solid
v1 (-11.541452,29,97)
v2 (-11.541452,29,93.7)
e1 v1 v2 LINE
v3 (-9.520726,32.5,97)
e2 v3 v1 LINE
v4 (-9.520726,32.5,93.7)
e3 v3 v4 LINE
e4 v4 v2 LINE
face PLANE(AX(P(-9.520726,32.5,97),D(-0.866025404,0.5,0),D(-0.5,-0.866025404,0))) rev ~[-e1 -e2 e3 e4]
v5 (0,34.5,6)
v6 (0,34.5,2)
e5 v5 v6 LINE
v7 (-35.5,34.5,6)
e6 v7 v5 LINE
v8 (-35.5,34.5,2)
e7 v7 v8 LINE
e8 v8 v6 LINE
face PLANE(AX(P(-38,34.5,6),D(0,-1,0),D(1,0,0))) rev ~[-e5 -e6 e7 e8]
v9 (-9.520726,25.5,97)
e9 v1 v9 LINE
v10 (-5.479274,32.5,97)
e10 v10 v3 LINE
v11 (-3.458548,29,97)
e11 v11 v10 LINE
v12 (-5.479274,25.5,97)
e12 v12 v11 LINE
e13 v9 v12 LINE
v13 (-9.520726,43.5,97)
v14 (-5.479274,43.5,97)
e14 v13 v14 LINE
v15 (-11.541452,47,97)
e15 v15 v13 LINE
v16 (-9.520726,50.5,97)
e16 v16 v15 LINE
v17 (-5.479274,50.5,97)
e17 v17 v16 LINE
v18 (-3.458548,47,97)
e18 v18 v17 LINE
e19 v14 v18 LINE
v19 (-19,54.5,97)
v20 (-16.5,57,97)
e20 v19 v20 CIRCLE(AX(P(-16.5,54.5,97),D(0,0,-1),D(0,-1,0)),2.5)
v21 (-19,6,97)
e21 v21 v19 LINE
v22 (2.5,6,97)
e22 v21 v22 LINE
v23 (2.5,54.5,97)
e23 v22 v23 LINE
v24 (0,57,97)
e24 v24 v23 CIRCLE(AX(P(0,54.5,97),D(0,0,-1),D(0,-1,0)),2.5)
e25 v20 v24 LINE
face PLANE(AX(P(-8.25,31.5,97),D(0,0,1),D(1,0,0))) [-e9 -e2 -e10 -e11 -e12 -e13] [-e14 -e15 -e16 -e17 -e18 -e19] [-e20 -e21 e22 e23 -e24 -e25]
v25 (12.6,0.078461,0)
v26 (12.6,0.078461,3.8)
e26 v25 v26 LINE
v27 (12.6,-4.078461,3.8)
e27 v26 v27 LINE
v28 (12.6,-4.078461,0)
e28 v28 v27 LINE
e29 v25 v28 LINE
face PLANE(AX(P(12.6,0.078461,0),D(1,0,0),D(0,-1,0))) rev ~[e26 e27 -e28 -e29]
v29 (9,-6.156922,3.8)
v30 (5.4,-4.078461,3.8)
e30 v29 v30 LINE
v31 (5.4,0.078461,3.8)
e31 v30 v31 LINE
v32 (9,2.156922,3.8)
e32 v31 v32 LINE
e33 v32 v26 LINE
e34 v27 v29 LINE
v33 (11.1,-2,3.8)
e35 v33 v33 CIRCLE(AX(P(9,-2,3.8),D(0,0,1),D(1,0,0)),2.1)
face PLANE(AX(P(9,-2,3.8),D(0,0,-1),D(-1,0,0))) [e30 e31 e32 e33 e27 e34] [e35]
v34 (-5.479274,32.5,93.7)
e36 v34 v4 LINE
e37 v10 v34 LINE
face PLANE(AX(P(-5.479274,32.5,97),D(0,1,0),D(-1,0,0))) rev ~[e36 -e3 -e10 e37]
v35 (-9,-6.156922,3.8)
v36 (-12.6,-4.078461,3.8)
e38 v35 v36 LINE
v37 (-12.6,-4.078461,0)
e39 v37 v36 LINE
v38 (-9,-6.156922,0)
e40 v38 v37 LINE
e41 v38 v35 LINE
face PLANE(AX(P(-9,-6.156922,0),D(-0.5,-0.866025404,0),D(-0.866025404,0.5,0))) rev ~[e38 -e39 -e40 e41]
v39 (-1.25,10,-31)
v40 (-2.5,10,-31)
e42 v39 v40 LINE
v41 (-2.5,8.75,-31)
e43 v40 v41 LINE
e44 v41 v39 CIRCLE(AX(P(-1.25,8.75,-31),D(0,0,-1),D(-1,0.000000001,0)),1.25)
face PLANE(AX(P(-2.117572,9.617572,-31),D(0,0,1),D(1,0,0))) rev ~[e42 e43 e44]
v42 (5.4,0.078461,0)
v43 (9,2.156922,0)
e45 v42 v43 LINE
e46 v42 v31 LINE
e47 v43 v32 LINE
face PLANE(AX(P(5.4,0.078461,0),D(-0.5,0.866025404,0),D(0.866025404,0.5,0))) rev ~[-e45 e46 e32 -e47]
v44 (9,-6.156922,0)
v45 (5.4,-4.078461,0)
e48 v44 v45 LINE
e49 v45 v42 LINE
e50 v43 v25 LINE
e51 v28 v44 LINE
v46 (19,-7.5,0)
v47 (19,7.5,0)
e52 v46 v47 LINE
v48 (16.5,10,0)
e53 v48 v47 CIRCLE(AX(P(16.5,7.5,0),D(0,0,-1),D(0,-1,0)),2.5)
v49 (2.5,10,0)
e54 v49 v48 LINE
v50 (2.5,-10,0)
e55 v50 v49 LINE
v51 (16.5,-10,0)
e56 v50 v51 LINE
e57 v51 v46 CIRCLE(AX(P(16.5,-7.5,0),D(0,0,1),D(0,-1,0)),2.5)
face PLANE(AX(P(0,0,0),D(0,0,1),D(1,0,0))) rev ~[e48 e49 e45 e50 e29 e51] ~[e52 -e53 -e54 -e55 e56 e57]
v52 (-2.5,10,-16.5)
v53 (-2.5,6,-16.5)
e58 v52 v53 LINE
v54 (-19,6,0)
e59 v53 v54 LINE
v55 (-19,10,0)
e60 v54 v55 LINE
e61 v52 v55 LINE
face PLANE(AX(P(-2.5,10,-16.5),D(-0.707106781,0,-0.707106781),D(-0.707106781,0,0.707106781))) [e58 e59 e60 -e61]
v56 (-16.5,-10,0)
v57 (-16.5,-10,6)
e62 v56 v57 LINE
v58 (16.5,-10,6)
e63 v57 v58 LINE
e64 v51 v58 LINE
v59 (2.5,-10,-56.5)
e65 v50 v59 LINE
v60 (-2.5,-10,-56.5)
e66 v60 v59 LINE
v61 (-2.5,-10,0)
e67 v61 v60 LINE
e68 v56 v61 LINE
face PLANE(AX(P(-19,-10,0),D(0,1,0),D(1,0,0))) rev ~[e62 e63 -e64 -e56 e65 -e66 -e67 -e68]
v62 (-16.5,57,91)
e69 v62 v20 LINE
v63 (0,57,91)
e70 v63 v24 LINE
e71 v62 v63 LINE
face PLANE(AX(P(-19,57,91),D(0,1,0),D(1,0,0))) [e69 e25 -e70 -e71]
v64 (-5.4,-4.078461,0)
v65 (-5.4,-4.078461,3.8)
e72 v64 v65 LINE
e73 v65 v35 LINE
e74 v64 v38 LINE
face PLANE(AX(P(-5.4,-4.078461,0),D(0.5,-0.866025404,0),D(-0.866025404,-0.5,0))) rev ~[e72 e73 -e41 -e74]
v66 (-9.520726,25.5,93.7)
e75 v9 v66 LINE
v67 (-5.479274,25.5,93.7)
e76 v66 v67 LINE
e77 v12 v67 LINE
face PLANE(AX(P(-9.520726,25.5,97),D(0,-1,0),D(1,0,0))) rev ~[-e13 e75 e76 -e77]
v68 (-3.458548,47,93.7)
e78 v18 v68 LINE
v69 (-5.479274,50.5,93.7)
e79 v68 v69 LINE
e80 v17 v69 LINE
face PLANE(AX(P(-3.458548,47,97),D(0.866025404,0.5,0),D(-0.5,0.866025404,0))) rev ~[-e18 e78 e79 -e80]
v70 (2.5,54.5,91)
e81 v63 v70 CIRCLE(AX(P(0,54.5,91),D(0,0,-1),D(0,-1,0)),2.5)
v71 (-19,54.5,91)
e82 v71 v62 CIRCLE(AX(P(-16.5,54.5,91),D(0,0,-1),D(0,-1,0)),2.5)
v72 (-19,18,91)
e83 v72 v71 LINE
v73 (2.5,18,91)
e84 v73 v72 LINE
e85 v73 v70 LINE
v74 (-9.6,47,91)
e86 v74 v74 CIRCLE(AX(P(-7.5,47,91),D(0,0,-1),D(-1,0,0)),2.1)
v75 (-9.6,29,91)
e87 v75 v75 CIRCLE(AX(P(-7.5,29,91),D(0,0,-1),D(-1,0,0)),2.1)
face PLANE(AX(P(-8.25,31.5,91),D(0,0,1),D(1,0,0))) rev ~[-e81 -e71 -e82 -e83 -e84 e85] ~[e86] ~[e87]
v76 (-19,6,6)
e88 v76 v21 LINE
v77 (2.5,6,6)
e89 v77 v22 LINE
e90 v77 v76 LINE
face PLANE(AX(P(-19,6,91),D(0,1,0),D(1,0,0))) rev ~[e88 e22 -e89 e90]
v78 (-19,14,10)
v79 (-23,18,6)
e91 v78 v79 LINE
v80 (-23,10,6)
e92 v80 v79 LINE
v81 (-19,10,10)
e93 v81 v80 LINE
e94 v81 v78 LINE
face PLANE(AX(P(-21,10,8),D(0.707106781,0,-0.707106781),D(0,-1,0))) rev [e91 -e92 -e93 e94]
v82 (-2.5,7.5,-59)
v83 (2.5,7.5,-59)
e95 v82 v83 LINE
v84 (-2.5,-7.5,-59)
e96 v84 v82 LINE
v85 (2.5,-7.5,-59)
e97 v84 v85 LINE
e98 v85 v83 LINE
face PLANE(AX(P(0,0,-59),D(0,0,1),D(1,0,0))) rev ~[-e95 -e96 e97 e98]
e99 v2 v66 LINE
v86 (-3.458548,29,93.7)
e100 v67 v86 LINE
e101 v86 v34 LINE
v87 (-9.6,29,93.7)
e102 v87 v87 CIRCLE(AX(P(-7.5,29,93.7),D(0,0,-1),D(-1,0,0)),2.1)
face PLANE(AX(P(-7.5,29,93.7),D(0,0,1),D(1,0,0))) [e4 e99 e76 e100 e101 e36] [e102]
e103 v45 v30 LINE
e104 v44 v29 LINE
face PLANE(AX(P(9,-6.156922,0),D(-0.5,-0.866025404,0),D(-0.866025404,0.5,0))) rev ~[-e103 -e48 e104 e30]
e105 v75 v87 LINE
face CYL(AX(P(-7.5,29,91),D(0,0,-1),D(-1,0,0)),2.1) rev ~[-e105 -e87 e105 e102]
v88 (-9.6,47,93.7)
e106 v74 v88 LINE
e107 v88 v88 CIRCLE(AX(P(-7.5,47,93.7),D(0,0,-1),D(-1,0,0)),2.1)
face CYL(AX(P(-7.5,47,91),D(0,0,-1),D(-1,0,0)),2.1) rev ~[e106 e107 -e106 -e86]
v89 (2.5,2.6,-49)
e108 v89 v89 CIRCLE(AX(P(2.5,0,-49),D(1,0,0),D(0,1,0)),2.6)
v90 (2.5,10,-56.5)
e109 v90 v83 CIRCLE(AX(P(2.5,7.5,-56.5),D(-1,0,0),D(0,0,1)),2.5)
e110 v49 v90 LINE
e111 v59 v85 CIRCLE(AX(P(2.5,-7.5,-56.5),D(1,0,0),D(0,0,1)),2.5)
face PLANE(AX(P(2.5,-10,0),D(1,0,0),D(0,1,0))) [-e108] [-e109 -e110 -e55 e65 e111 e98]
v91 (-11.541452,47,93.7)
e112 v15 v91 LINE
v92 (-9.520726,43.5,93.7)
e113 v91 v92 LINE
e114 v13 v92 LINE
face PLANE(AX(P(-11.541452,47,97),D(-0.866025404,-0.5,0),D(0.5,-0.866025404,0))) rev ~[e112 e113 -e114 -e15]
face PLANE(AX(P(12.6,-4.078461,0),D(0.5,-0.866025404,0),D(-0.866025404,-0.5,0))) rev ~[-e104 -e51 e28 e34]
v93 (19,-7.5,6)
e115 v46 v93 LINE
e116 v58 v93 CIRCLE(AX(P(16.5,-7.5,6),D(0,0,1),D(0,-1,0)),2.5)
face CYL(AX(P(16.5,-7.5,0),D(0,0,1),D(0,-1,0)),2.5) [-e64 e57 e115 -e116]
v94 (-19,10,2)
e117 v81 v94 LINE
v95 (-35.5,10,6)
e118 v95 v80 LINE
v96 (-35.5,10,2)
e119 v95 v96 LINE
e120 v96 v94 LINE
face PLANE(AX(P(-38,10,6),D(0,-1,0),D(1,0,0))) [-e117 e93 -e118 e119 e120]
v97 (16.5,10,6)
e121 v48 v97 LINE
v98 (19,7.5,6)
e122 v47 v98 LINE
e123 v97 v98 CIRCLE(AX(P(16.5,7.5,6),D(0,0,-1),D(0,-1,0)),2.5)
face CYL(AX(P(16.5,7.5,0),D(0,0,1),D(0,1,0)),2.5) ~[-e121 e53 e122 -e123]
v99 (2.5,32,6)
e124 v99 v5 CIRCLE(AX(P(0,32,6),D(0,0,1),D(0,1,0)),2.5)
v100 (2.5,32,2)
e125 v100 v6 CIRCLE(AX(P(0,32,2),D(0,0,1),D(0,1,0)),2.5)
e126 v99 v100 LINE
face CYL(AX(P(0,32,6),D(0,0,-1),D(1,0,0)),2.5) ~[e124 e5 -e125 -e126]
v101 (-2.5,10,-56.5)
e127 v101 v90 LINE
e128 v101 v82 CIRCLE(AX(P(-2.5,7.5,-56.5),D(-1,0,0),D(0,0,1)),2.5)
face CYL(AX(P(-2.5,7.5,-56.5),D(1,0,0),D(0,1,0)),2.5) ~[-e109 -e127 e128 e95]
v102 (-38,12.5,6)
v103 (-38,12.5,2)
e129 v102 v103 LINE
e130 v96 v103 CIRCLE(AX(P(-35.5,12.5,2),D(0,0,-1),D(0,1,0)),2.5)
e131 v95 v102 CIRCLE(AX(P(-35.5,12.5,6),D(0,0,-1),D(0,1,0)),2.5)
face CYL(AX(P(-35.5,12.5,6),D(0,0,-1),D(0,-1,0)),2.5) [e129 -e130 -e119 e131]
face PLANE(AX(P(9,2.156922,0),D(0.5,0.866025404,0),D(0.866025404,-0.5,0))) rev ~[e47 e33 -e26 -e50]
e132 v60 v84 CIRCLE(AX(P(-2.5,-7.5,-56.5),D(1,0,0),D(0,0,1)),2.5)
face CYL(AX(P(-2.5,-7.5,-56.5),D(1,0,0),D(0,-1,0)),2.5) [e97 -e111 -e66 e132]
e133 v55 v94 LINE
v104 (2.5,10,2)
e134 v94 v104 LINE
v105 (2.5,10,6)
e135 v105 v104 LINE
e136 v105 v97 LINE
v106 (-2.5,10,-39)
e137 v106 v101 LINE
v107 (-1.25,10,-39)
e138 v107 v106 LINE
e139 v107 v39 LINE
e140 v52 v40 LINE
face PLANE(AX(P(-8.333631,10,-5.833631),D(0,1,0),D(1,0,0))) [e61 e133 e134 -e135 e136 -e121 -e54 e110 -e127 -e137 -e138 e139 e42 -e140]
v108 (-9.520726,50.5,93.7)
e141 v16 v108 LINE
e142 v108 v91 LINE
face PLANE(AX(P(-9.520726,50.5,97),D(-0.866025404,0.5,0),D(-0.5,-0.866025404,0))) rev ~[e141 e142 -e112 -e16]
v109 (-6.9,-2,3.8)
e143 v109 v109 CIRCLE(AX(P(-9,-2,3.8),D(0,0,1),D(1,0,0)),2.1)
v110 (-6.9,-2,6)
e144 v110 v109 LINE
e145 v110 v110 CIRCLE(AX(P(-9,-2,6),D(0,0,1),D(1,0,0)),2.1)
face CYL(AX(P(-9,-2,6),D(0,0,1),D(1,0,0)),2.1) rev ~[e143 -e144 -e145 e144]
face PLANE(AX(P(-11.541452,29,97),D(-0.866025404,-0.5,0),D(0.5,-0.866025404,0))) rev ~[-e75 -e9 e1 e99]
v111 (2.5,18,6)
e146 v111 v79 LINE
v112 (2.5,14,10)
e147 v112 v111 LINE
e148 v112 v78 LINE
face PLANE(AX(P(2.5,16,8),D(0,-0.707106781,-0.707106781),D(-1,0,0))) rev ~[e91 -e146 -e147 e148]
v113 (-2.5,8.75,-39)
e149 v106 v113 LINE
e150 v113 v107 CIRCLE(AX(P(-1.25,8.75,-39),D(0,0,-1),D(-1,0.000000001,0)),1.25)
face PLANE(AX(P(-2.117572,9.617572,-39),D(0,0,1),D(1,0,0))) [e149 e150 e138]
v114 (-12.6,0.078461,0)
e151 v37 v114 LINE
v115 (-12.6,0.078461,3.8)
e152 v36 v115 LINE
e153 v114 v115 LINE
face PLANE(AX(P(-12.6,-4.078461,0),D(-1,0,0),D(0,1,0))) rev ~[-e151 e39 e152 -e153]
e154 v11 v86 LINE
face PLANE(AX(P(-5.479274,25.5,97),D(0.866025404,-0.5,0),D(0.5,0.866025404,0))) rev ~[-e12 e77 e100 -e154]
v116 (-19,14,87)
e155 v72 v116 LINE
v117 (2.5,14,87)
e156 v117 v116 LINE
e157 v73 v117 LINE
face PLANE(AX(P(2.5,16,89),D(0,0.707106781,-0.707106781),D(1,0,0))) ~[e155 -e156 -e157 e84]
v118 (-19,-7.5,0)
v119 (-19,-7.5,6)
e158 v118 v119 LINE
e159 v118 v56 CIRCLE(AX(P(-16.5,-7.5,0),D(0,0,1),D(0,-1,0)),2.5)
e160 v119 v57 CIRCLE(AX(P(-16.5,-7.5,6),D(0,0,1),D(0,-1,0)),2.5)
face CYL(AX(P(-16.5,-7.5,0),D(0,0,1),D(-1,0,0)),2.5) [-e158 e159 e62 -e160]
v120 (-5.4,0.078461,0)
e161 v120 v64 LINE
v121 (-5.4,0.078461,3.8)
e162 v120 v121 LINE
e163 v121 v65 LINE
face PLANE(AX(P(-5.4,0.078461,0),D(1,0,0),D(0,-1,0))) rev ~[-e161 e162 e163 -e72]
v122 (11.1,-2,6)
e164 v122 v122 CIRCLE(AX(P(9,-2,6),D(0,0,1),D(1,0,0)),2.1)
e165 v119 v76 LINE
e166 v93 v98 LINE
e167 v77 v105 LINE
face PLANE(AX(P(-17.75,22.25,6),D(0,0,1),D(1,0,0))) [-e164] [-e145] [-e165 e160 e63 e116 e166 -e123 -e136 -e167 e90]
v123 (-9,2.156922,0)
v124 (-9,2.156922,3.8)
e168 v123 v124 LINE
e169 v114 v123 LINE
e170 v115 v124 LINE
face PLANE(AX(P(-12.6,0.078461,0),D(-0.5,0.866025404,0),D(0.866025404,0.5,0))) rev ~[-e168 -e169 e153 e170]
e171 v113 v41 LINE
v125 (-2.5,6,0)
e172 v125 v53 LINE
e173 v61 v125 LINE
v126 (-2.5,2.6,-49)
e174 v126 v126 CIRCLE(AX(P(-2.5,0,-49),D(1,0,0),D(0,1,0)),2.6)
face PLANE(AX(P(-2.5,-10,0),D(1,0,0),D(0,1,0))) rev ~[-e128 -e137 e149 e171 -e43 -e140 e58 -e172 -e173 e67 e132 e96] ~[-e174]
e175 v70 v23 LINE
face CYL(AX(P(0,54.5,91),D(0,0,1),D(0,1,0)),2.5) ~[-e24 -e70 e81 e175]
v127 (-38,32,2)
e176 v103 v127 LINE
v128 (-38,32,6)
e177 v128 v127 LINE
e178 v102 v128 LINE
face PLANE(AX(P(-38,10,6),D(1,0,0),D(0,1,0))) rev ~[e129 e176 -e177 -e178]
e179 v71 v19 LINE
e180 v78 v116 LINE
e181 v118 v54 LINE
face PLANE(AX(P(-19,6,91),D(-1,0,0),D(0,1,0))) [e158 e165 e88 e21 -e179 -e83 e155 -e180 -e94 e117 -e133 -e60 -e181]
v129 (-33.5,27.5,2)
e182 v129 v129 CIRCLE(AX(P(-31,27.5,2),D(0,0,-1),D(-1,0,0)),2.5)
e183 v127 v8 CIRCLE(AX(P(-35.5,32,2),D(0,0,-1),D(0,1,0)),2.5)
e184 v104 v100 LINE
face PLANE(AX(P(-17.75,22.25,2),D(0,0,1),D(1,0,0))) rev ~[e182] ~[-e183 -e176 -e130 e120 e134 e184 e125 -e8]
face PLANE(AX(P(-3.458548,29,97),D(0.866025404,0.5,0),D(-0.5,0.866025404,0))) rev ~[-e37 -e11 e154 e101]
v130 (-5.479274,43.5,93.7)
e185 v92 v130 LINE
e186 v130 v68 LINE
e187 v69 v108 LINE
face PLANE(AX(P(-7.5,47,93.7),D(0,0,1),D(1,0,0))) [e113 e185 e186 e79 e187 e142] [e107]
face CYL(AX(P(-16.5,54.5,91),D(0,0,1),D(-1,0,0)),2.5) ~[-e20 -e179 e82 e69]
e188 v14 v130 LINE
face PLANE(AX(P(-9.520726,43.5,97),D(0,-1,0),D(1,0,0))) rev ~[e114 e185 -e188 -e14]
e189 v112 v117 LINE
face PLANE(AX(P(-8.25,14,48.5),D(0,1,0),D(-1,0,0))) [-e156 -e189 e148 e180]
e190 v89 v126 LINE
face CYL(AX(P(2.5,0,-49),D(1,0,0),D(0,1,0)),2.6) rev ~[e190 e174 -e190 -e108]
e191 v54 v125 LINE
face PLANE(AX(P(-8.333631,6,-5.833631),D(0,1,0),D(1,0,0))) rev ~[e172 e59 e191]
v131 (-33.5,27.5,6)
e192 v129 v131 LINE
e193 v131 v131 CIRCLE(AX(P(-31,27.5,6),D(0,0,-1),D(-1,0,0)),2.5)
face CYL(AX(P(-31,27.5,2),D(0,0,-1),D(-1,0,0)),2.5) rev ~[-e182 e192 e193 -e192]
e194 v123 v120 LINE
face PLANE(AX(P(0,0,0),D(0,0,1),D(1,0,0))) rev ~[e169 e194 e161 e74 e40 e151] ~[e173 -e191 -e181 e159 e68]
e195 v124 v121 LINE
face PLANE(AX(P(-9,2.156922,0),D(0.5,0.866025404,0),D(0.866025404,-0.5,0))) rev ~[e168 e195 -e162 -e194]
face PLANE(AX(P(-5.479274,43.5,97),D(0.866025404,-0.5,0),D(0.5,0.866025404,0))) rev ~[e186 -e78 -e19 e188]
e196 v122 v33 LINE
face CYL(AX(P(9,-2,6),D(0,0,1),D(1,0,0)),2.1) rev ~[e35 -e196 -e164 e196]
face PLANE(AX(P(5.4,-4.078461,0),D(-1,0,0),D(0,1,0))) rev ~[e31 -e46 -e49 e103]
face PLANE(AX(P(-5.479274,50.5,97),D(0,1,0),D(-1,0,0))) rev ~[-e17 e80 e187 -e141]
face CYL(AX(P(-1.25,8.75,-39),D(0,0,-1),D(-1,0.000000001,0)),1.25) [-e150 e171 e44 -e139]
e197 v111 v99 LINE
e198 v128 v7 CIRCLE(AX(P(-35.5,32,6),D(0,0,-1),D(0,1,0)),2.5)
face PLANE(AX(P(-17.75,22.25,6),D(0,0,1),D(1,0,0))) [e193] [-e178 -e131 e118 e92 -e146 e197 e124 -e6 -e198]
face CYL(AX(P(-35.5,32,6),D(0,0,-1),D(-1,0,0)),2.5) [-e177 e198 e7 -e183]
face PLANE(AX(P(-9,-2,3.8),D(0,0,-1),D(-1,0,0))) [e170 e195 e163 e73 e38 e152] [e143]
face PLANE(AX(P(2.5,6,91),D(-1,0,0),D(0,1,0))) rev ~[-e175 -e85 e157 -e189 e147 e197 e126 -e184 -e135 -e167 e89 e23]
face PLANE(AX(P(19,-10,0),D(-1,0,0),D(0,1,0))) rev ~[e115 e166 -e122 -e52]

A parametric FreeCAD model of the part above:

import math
import FreeCAD as App
import Part
import Sketcher
from FreeCAD import Vector
Q = App.Units.Quantity


def edges_at(feature, points):
    """Names of the edges that pass closest to the given points."""
    edges = feature.Shape.Edges
    near = lambda p: min(range(len(edges)), key=lambda i: edges[i].distToShape(Part.Vertex(*p))[0])
    return sorted({f"Edge{near(p) + 1}" for p in points})

doc = App.newDocument("Part")
body = doc.addObject("PartDesign::Body", "Body")

sketch1 = body.newObject("Sketcher::SketchObject", "Sketch")
sketch1.AttachmentSupport = (doc.getObject("XY_Plane"), [""])
sketch1.MapMode = "FlatFace"
sketch1.addGeometry(Part.LineSegment(Vector(-19, 10, 0), Vector(-19, -10, 0)), False)
sketch1.addGeometry(Part.LineSegment(Vector(-19, -10, 0), Vector(19, -10, 0)), False)
sketch1.addGeometry(Part.LineSegment(Vector(19, -10, 0), Vector(19, 10, 0)), False)
sketch1.addGeometry(Part.LineSegment(Vector(19, 10, 0), Vector(-19, 10, 0)), False)
sketch1.addConstraint(Sketcher.Constraint("Coincident", 0, 2, 1, 1))
sketch1.addConstraint(Sketcher.Constraint("Coincident", 1, 2, 2, 1))
sketch1.addConstraint(Sketcher.Constraint("Coincident", 2, 2, 3, 1))
sketch1.addConstraint(Sketcher.Constraint("Coincident", 3, 2, 0, 1))
sketch1.addConstraint(Sketcher.Constraint("Vertical", 0))
sketch1.addConstraint(Sketcher.Constraint("Horizontal", 1))
sketch1.addConstraint(Sketcher.Constraint("Vertical", 2))
sketch1.addConstraint(Sketcher.Constraint("Horizontal", 3))
sketch1.addConstraint(Sketcher.Constraint("Symmetric", 0, 2, 2, 2, -1, 1))
sketch1.addConstraint(Sketcher.Constraint("DistanceX", 1, 1, 1, 2, 38.0))
sketch1.addConstraint(Sketcher.Constraint("DistanceY", 0, 2, 0, 1, 20.0))
pad1 = body.newObject("PartDesign::Pad", "Pad")
pad1.Profile = sketch1
pad1.Length = 6

sketch2 = body.newObject("Sketcher::SketchObject", "Sketch001")
sketch2.AttachmentSupport = (doc.getObject("XY_Plane"), [""])
sketch2.MapMode = "FlatFace"
sketch2.addGeometry(Part.LineSegment(Vector(-2, 10, 0), Vector(-2, -10, 0)), False)
sketch2.addGeometry(Part.LineSegment(Vector(-2, -10, 0), Vector(2, -10, 0)), False)
sketch2.addGeometry(Part.LineSegment(Vector(2, -10, 0), Vector(2, 10, 0)), False)
sketch2.addGeometry(Part.LineSegment(Vector(2, 10, 0), Vector(-2, 10, 0)), False)
sketch2.addConstraint(Sketcher.Constraint("Coincident", 0, 2, 1, 1))
sketch2.addConstraint(Sketcher.Constraint("Coincident", 1, 2, 2, 1))
sketch2.addConstraint(Sketcher.Constraint("Coincident", 2, 2, 3, 1))
sketch2.addConstraint(Sketcher.Constraint("Coincident", 3, 2, 0, 1))
sketch2.addConstraint(Sketcher.Constraint("Vertical", 0))
sketch2.addConstraint(Sketcher.Constraint("Horizontal", 1))
sketch2.addConstraint(Sketcher.Constraint("Vertical", 2))
sketch2.addConstraint(Sketcher.Constraint("Horizontal", 3))
sketch2.addConstraint(Sketcher.Constraint("Symmetric", 0, 2, 2, 2, -1, 1))
sketch2.addConstraint(Sketcher.Constraint("DistanceX", 1, 1, 1, 2, 5.0))
sketch2.addConstraint(Sketcher.Constraint("DistanceY", 0, 2, 0, 1, 20.0))
pad2 = body.newObject("PartDesign::Pad", "Pad001")
pad2.Profile = sketch2
pad2.Length = 59
pad2.Reversed = True

sketch3 = body.newObject("Sketcher::SketchObject", "Sketch002")
sketch3.AttachmentSupport = (doc.getObject("XY_Plane"), [""])
sketch3.MapMode = "FlatFace"
sketch3.AttachmentOffset = App.Placement(Vector(0, 0, 6), App.Rotation())
sketch3.addGeometry(Part.LineSegment(Vector(-38, 34, 0), Vector(-38, 10, 0)), False)
sketch3.addGeometry(Part.LineSegment(Vector(-38, 10, 0), Vector(2, 10, 0)), False)
sketch3.addGeometry(Part.LineSegment(Vector(2, 10, 0), Vector(2, 34, 0)), False)
sketch3.addGeometry(Part.LineSegment(Vector(2, 34, 0), Vector(-38, 34, 0)), False)
sketch3.addConstraint(Sketcher.Constraint("Coincident", 0, 2, 1, 1))
sketch3.addConstraint(Sketcher.Constraint("Coincident", 1, 2, 2, 1))
sketch3.addConstraint(Sketcher.Constraint("Coincident", 2, 2, 3, 1))
sketch3.addConstraint(Sketcher.Constraint("Coincident", 3, 2, 0, 1))
sketch3.addConstraint(Sketcher.Constraint("Vertical", 0))
sketch3.addConstraint(Sketcher.Constraint("Horizontal", 1))
sketch3.addConstraint(Sketcher.Constraint("Vertical", 2))
sketch3.addConstraint(Sketcher.Constraint("Horizontal", 3))
sketch3.addConstraint(Sketcher.Constraint("DistanceX", 1, 1, 1, 2, 40.5))
sketch3.addConstraint(Sketcher.Constraint("DistanceY", 0, 2, 0, 1, 24.5))
sketch3.addConstraint(Sketcher.Constraint("DistanceX", 0, 2, -1, 1, 38.0))
sketch3.addConstraint(Sketcher.Constraint("DistanceY", -1, 1, 0, 2, 10.0))
pad3 = body.newObject("PartDesign::Pad", "Pad002")
pad3.Profile = sketch3
pad3.Length = 4
pad3.Reversed = True

sketch4 = body.newObject("Sketcher::SketchObject", "Sketch003")
sketch4.AttachmentSupport = (doc.getObject("XZ_Plane"), [""])
sketch4.MapMode = "FlatFace"
sketch4.AttachmentOffset = App.Placement(Vector(0, 0, -10), App.Rotation())
sketch4.addGeometry(Part.LineSegment(Vector(2, 91, 0), Vector(2, 6, 0)), False)
sketch4.addGeometry(Part.LineSegment(Vector(2, 6, 0), Vector(-19, 6, 0)), False)
sketch4.addGeometry(Part.LineSegment(Vector(-19, 6, 0), Vector(-19, 91, 0)), False)
sketch4.addGeometry(Part.LineSegment(Vector(-19, 91, 0), Vector(2, 91, 0)), False)
sketch4.addConstraint(Sketcher.Constraint("Coincident", 0, 2, 1, 1))
sketch4.addConstraint(Sketcher.Constraint("Coincident", 1, 2, 2, 1))
sketch4.addConstraint(Sketcher.Constraint("Coincident", 2, 2, 3, 1))
sketch4.addConstraint(Sketcher.Constraint("Coincident", 3, 2, 0, 1))
sketch4.addConstraint(Sketcher.Constraint("Vertical", 0))
sketch4.addConstraint(Sketcher.Constraint("Horizontal", 1))
sketch4.addConstraint(Sketcher.Constraint("Vertical", 2))
sketch4.addConstraint(Sketcher.Constraint("Horizontal", 3))
sketch4.addConstraint(Sketcher.Constraint("DistanceY", 0, 2, 0, 1, 85.0))
sketch4.addConstraint(Sketcher.Constraint("DistanceX", 1, 2, 1, 1, 21.5))
sketch4.addConstraint(Sketcher.Constraint("DistanceY", -1, 1, 0, 2, 6.0))
sketch4.addConstraint(Sketcher.Constraint("DistanceX", 1, 2, -1, 1, 19.0))
pad4 = body.newObject("PartDesign::Pad", "Pad003")
pad4.Profile = sketch4
pad4.Length = 8
pad4.Midplane = True

sketch5 = body.newObject("Sketcher::SketchObject", "Sketch004")
sketch5.AttachmentSupport = (doc.getObject("XY_Plane"), [""])
sketch5.MapMode = "FlatFace"
sketch5.AttachmentOffset = App.Placement(Vector(0, 0, 91), App.Rotation())
sketch5.addGeometry(Part.LineSegment(Vector(-19, 57, 0), Vector(-19, 6, 0)), False)
sketch5.addGeometry(Part.LineSegment(Vector(-19, 6, 0), Vector(2, 6, 0)), False)
sketch5.addGeometry(Part.LineSegment(Vector(2, 6, 0), Vector(2, 57, 0)), False)
sketch5.addGeometry(Part.LineSegment(Vector(2, 57, 0), Vector(-19, 57, 0)), False)
sketch5.addConstraint(Sketcher.Constraint("Coincident", 0, 2, 1, 1))
sketch5.addConstraint(Sketcher.Constraint("Coincident", 1, 2, 2, 1))
sketch5.addConstraint(Sketcher.Constraint("Coincident", 2, 2, 3, 1))
sketch5.addConstraint(Sketcher.Constraint("Coincident", 3, 2, 0, 1))
sketch5.addConstraint(Sketcher.Constraint("Vertical", 0))
sketch5.addConstraint(Sketcher.Constraint("Horizontal", 1))
sketch5.addConstraint(Sketcher.Constraint("Vertical", 2))
sketch5.addConstraint(Sketcher.Constraint("Horizontal", 3))
sketch5.addConstraint(Sketcher.Constraint("DistanceY", 0, 2, 0, 1, 51.0))
sketch5.addConstraint(Sketcher.Constraint("DistanceX", 1, 1, 1, 2, 21.5))
sketch5.addConstraint(Sketcher.Constraint("DistanceX", 0, 2, -1, 1, 19.0))
sketch5.addConstraint(Sketcher.Constraint("DistanceY", -1, 1, 0, 2, 6.0))
pad5 = body.newObject("PartDesign::Pad", "Pad004")
pad5.Profile = sketch5
pad5.Length = 6

sketch6 = body.newObject("Sketcher::SketchObject", "Sketch005")
sketch6.AttachmentSupport = (doc.getObject("XZ_Plane"), [""])
sketch6.MapMode = "FlatFace"
sketch6.AttachmentOffset = App.Placement(Vector(0, 0, -10), App.Rotation())
sketch6.addGeometry(Part.LineSegment(Vector(-2, -16, 0), Vector(-19, 0, 0)), False)
sketch6.addGeometry(Part.LineSegment(Vector(-19, 0, 0), Vector(-2, 0, 0)), False)
sketch6.addGeometry(Part.LineSegment(Vector(-2, 0, 0), Vector(-2, -16, 0)), False)
sketch6.addConstraint(Sketcher.Constraint("Coincident", 0, 2, 1, 1))
sketch6.addConstraint(Sketcher.Constraint("Coincident", 1, 2, 2, 1))
sketch6.addConstraint(Sketcher.Constraint("Coincident", 2, 2, 0, 1))
sketch6.addConstraint(Sketcher.Constraint("Horizontal", 1))
sketch6.addConstraint(Sketcher.Constraint("Vertical", 2))
sketch6.addConstraint(Sketcher.Constraint("PointOnObject", 0, 2, -1))
sketch6.addConstraint(Sketcher.Constraint("Equal", 1, 2))
sketch6.addConstraint(Sketcher.Constraint("DistanceX", 1, 1, 1, 2, 16.5))
sketch6.addConstraint(Sketcher.Constraint("DistanceX", 0, 2, -1, 1, 19.0))
pad6 = body.newObject("PartDesign::Pad", "Pad005")
pad6.Profile = sketch6
pad6.Length = 4

sketch7 = body.newObject("Sketcher::SketchObject", "Sketch006")
sketch7.AttachmentSupport = (doc.getObject("XY_Plane"), [""])
sketch7.MapMode = "FlatFace"
sketch7.AttachmentOffset = App.Placement(Vector(0, 0, -39), App.Rotation())
sketch7.addGeometry(Part.LineSegment(Vector(-2.5, 10, 0), Vector(-1.2, 10, 0)), False)
sketch7.addGeometry(Part.ArcOfCircle(Part.Circle(Vector(-1.2, 8.7, 0), Vector(0, 0, 1), 1.3), math.radians(90), math.radians(180)), False)
sketch7.addGeometry(Part.LineSegment(Vector(-2.5, 8.8, 0), Vector(-2.5, 10, 0)), False)
sketch7.addConstraint(Sketcher.Constraint("Tangent", 0, 2, 1, 1))
sketch7.addConstraint(Sketcher.Constraint("Tangent", 1, 2, 2, 1))
sketch7.addConstraint(Sketcher.Constraint("Coincident", 2, 2, 0, 1))
sketch7.addConstraint(Sketcher.Constraint("Horizontal", 0))
sketch7.addConstraint(Sketcher.Constraint("Vertical", 2))
sketch7.addConstraint(Sketcher.Constraint("Radius", 1, 1.25))
sketch7.addConstraint(Sketcher.Constraint("DistanceY", -1, 1, 0, 2, 10.0))
sketch7.addConstraint(Sketcher.Constraint("DistanceX", 1, 2, -1, 1, 2.5))
pocket1 = body.newObject("PartDesign::Pocket", "Pocket")
pocket1.Profile = sketch7
pocket1.Length = 8
pocket1.Reversed = True

sketch8 = body.newObject("Sketcher::SketchObject", "Sketch007")
sketch8.AttachmentSupport = (doc.getObject("XY_Plane"), [""])
sketch8.MapMode = "FlatFace"
sketch8.AttachmentOffset = App.Placement(Vector(0, 0, 6), App.Rotation())
sketch8.addGeometry(Part.Circle(Vector(-9, -2, 0), Vector(0, 0, 1), 2.1), False)
sketch8.addGeometry(Part.Circle(Vector(9, -2, 0), Vector(0, 0, 1), 2.1), False)
sketch8.addConstraint(Sketcher.Constraint("Equal", 0, 1))
sketch8.addConstraint(Sketcher.Constraint("Symmetric", 0, 3, 1, 3, -2))
sketch8.addConstraint(Sketcher.Constraint("Diameter", 0, 4.2))
sketch8.addConstraint(Sketcher.Constraint("DistanceX", 0, 3, -1, 1, 9.0))
sketch8.addConstraint(Sketcher.Constraint("DistanceY", 0, 3, -1, 1, 2.0))
pocket2 = body.newObject("PartDesign::Pocket", "Pocket001")
pocket2.Profile = sketch8
pocket2.Type = "ThroughAll"

sketch9 = body.newObject("Sketcher::SketchObject", "Sketch008")
sketch9.AttachmentSupport = (doc.getObject("XY_Plane"), [""])
sketch9.MapMode = "FlatFace"
sketch9.addGeometry(Part.LineSegment(Vector(9, 2.2, 0), Vector(12.6, 0.1, 0)), False)
sketch9.addGeometry(Part.LineSegment(Vector(12.6, 0.1, 0), Vector(12.6, -4.1, 0)), False)
sketch9.addGeometry(Part.LineSegment(Vector(12.6, -4.1, 0), Vector(9, -6.2, 0)), False)
sketch9.addGeometry(Part.LineSegment(Vector(9, -6.2, 0), Vector(5.4, -4.1, 0)), False)
sketch9.addGeometry(Part.LineSegment(Vector(5.4, -4.1, 0), Vector(5.4, 0.1, 0)), False)
sketch9.addGeometry(Part.LineSegment(Vector(5.4, 0.1, 0), Vector(9, 2.2, 0)), False)
sketch9.addGeometry(Part.LineSegment(Vector(-9, 2.2, 0), Vector(-5.4, 0.1, 0)), False)
sketch9.addGeometry(Part.LineSegment(Vector(-5.4, 0.1, 0), Vector(-5.4, -4.1, 0)), False)
sketch9.addGeometry(Part.LineSegment(Vector(-5.4, -4.1, 0), Vector(-9, -6.2, 0)), False)
sketch9.addGeometry(Part.LineSegment(Vector(-9, -6.2, 0), Vector(-12.6, -4.1, 0)), False)
sketch9.addGeometry(Part.LineSegment(Vector(-12.6, -4.1, 0), Vector(-12.6, 0.1, 0)), False)
sketch9.addGeometry(Part.LineSegment(Vector(-12.6, 0.1, 0), Vector(-9, 2.2, 0)), False)
sketch9.addConstraint(Sketcher.Constraint("Coincident", 0, 2, 1, 1))
sketch9.addConstraint(Sketcher.Constraint("Coincident", 1, 2, 2, 1))
sketch9.addConstraint(Sketcher.Constraint("Coincident", 2, 2, 3, 1))
sketch9.addConstraint(Sketcher.Constraint("Coincident", 3, 2, 4, 1))
sketch9.addConstraint(Sketcher.Constraint("Coincident", 4, 2, 5, 1))
sketch9.addConstraint(Sketcher.Constraint("Coincident", 5, 2, 0, 1))
sketch9.addConstraint(Sketcher.Constraint("Coincident", 6, 2, 7, 1))
sketch9.addConstraint(Sketcher.Constraint("Coincident", 7, 2, 8, 1))
sketch9.addConstraint(Sketcher.Constraint("Coincident", 8, 2, 9, 1))
sketch9.addConstraint(Sketcher.Constraint("Coincident", 9, 2, 10, 1))
sketch9.addConstraint(Sketcher.Constraint("Coincident", 10, 2, 11, 1))
sketch9.addConstraint(Sketcher.Constraint("Coincident", 11, 2, 6, 1))
sketch9.addConstraint(Sketcher.Constraint("Vertical", 1))
sketch9.addConstraint(Sketcher.Constraint("Vertical", 4))
sketch9.addConstraint(Sketcher.Constraint("Vertical", 7))
sketch9.addConstraint(Sketcher.Constraint("Vertical", 10))
sketch9.addConstraint(Sketcher.Constraint("Symmetric", 4, 2, 6, 2, -2))
sketch9.addConstraint(Sketcher.Constraint("Symmetric", 2, 2, 8, 2, -2))
sketch9.addConstraint(Sketcher.Constraint("Symmetric", 1, 2, 9, 2, -2))
sketch9.addConstraint(Sketcher.Constraint("Symmetric", 5, 2, 11, 2, -2))
sketch9.addConstraint(Sketcher.Constraint("Parallel", 0, 3))
sketch9.addConstraint(Sketcher.Constraint("Parallel", 2, 5))
sketch9.addConstraint(Sketcher.Constraint("Parallel", 3, 6))
sketch9.addConstraint(Sketcher.Constraint("Parallel", 5, 8))
sketch9.addConstraint(Sketcher.Constraint("Parallel", 8, 11))
sketch9.addConstraint(Sketcher.Constraint("Horizontal", 1, 2, 3, 2))
sketch9.addConstraint(Sketcher.Constraint("Horizontal", 0, 2, 4, 2))
sketch9.addConstraint(Sketcher.Constraint("Angle", 0, Q("-30 deg")))
sketch9.addConstraint(Sketcher.Constraint("DistanceX", -1, 1, 2, 2, 9.0))
sketch9.addConstraint(Sketcher.Constraint("DistanceX", -1, 1, 0, 2, 12.6))
sketch9.addConstraint(Sketcher.Constraint("DistanceY", 1, 2, 1, 1, 4.156922))
sketch9.addConstraint(Sketcher.Constraint("DistanceY", -1, 1, 0, 2, 0.078461))
pocket3 = body.newObject("PartDesign::Pocket", "Pocket002")
pocket3.Profile = sketch9
pocket3.Length = 3.8
pocket3.Reversed = True

sketch10 = body.newObject("Sketcher::SketchObject", "Sketch009")
sketch10.AttachmentSupport = (doc.getObject("YZ_Plane"), [""])
sketch10.MapMode = "FlatFace"
sketch10.AttachmentOffset = App.Placement(Vector(0, 0, 2.5), App.Rotation())
sketch10.addGeometry(Part.Circle(Vector(0, -49, 0), Vector(0, 0, 1), 2.6), False)
sketch10.addConstraint(Sketcher.Constraint("PointOnObject", 0, 3, -2))
sketch10.addConstraint(Sketcher.Constraint("Diameter", 0, 5.2))
sketch10.addConstraint(Sketcher.Constraint("DistanceY", 0, 3, -1, 1, 49.0))
pocket4 = body.newObject("PartDesign::Pocket", "Pocket003")
pocket4.Profile = sketch10
pocket4.Type = "ThroughAll"

sketch11 = body.newObject("Sketcher::SketchObject", "Sketch010")
sketch11.AttachmentSupport = (doc.getObject("XY_Plane"), [""])
sketch11.MapMode = "FlatFace"
sketch11.AttachmentOffset = App.Placement(Vector(0, 0, 91), App.Rotation())
sketch11.addGeometry(Part.Circle(Vector(-7.5, 29, 0), Vector(0, 0, 1), 2.1), False)
sketch11.addGeometry(Part.Circle(Vector(-7.5, 47, 0), Vector(0, 0, 1), 2.1), False)
sketch11.addConstraint(Sketcher.Constraint("Equal", 0, 1))
sketch11.addConstraint(Sketcher.Constraint("Vertical", 0, 3, 1, 3))
sketch11.addConstraint(Sketcher.Constraint("Diameter", 0, 4.2))
sketch11.addConstraint(Sketcher.Constraint("DistanceY", -1, 1, 0, 3, 29.0))
sketch11.addConstraint(Sketcher.Constraint("DistanceY", -1, 1, 1, 3, 47.0))
sketch11.addConstraint(Sketcher.Constraint("DistanceX", 0, 3, -1, 1, 7.5))
pocket5 = body.newObject("PartDesign::Pocket", "Pocket004")
pocket5.Profile = sketch11
pocket5.Type = "ThroughAll"
pocket5.Reversed = True

sketch12 = body.newObject("Sketcher::SketchObject", "Sketch011")
sketch12.AttachmentSupport = (doc.getObject("XY_Plane"), [""])
sketch12.MapMode = "FlatFace"
sketch12.AttachmentOffset = App.Placement(Vector(0, 0, 97), App.Rotation())
sketch12.addGeometry(Part.LineSegment(Vector(-3.5, 29, 0), Vector(-5.5, 32.5, 0)), False)
sketch12.addGeometry(Part.LineSegment(Vector(-5.5, 32.5, 0), Vector(-9.5, 32.5, 0)), False)
sketch12.addGeometry(Part.LineSegment(Vector(-9.5, 32.5, 0), Vector(-11.5, 29, 0)), False)
sketch12.addGeometry(Part.LineSegment(Vector(-11.5, 29, 0), Vector(-9.5, 25.5, 0)), False)
sketch12.addGeometry(Part.LineSegment(Vector(-9.5, 25.5, 0), Vector(-5.5, 25.5, 0)), False)
sketch12.addGeometry(Part.LineSegment(Vector(-5.5, 25.5, 0), Vector(-3.5, 29, 0)), False)
sketch12.addGeometry(Part.LineSegment(Vector(-3.5, 47, 0), Vector(-5.5, 50.5, 0)), False)
sketch12.addGeometry(Part.LineSegment(Vector(-5.5, 50.5, 0), Vector(-9.5, 50.5, 0)), False)
sketch12.addGeometry(Part.LineSegment(Vector(-9.5, 50.5, 0), Vector(-11.5, 47, 0)), False)
sketch12.addGeometry(Part.LineSegment(Vector(-11.5, 47, 0), Vector(-9.5, 43.5, 0)), False)
sketch12.addGeometry(Part.LineSegment(Vector(-9.5, 43.5, 0), Vector(-5.5, 43.5, 0)), False)
sketch12.addGeometry(Part.LineSegment(Vector(-5.5, 43.5, 0), Vector(-3.5, 47, 0)), False)
sketch12.addConstraint(Sketcher.Constraint("Coincident", 0, 2, 1, 1))
sketch12.addConstraint(Sketcher.Constraint("Coincident", 1, 2, 2, 1))
sketch12.addConstraint(Sketcher.Constraint("Coincident", 2, 2, 3, 1))
sketch12.addConstraint(Sketcher.Constraint("Coincident", 3, 2, 4, 1))
sketch12.addConstraint(Sketcher.Constraint("Coincident", 4, 2, 5, 1))
sketch12.addConstraint(Sketcher.Constraint("Coincident", 5, 2, 0, 1))
sketch12.addConstraint(Sketcher.Constraint("Coincident", 6, 2, 7, 1))
sketch12.addConstraint(Sketcher.Constraint("Coincident", 7, 2, 8, 1))
sketch12.addConstraint(Sketcher.Constraint("Coincident", 8, 2, 9, 1))
sketch12.addConstraint(Sketcher.Constraint("Coincident", 9, 2, 10, 1))
sketch12.addConstraint(Sketcher.Constraint("Coincident", 10, 2, 11, 1))
sketch12.addConstraint(Sketcher.Constraint("Coincident", 11, 2, 6, 1))
sketch12.addConstraint(Sketcher.Constraint("Horizontal", 1))
sketch12.addConstraint(Sketcher.Constraint("Horizontal", 4))
sketch12.addConstraint(Sketcher.Constraint("Horizontal", 7))
sketch12.addConstraint(Sketcher.Constraint("Horizontal", 10))
sketch12.addConstraint(Sketcher.Constraint("Parallel", 0, 3))
sketch12.addConstraint(Sketcher.Constraint("Parallel", 2, 5))
sketch12.addConstraint(Sketcher.Constraint("Parallel", 3, 6))
sketch12.addConstraint(Sketcher.Constraint("Parallel", 5, 8))
sketch12.addConstraint(Sketcher.Constraint("Parallel", 6, 9))
sketch12.addConstraint(Sketcher.Constraint("Parallel", 8, 11))
sketch12.addConstraint(Sketcher.Constraint("Horizontal", 2, 2, 5, 2))
sketch12.addConstraint(Sketcher.Constraint("Horizontal", 8, 2, 11, 2))
sketch12.addConstraint(Sketcher.Constraint("Vertical", 1, 2, 3, 2))
sketch12.addConstraint(Sketcher.Constraint("Vertical", 0, 2, 4, 2))
sketch12.addConstraint(Sketcher.Constraint("Vertical", 4, 2, 6, 2))
sketch12.addConstraint(Sketcher.Constraint("Vertical", 3, 2, 7, 2))
sketch12.addConstraint(Sketcher.Constraint("Vertical", 2, 2, 8, 2))
sketch12.addConstraint(Sketcher.Constraint("Vertical", 7, 2, 9, 2))
sketch12.addConstraint(Sketcher.Constraint("Angle", 0, Q("120 deg")))
sketch12.addConstraint(Sketcher.Constraint("DistanceY", -1, 1, 2, 2, 29.0))
sketch12.addConstraint(Sketcher.Constraint("DistanceY", -1, 1, 8, 2, 47.0))
sketch12.addConstraint(Sketcher.Constraint("DistanceY", 3, 2, 1, 2, 7.0))
sketch12.addConstraint(Sketcher.Constraint("DistanceX", 1, 2, 1, 1, 4.041452))
sketch12.addConstraint(Sketcher.Constraint("DistanceX", 2, 2, -1, 1, 11.541452))
pocket6 = body.newObject("PartDesign::Pocket", "Pocket005")
pocket6.Profile = sketch12
pocket6.Length = 3.3

sketch13 = body.newObject("Sketcher::SketchObject", "Sketch012")
sketch13.AttachmentSupport = (doc.getObject("XY_Plane"), [""])
sketch13.MapMode = "FlatFace"
sketch13.AttachmentOffset = App.Placement(Vector(0, 0, 2), App.Rotation())
sketch13.addGeometry(Part.Circle(Vector(-31, 27.5, 0), Vector(0, 0, 1), 2.5), False)
sketch13.addConstraint(Sketcher.Constraint("Diameter", 0, 5.0))
sketch13.addConstraint(Sketcher.Constraint("DistanceX", 0, 3, -1, 1, 31.0))
sketch13.addConstraint(Sketcher.Constraint("DistanceY", -1, 1, 0, 3, 27.5))
pocket7 = body.newObject("PartDesign::Pocket", "Pocket006")
pocket7.Profile = sketch13
pocket7.Type = "ThroughAll"
pocket7.Reversed = True
doc.recompute()

fillet = body.newObject("PartDesign::Fillet", "Fillet")
fillet.Base = (pocket7, edges_at(pocket7, [
    (0, 10, -59),
    (0, -10, -59),
    (2.5, 34.5, 4),
    (-38, 10, 4),
    (-38, 34.5, 4),
    (2.5, 57, 94),
    (-19, 57, 94),
    (19, 10, 3),
    (19, -10, 3),
    (-19, -10, 3),
]))
fillet.Radius = 2.5
doc.recompute()

chamfer = body.newObject("PartDesign::Chamfer", "Chamfer")
chamfer.Base = (fillet, edges_at(fillet, [(-19, 12, 6), (-8.25, 14, 91), (-8.25, 14, 6)]))
chamfer.Size = 4

doc.recompute()
